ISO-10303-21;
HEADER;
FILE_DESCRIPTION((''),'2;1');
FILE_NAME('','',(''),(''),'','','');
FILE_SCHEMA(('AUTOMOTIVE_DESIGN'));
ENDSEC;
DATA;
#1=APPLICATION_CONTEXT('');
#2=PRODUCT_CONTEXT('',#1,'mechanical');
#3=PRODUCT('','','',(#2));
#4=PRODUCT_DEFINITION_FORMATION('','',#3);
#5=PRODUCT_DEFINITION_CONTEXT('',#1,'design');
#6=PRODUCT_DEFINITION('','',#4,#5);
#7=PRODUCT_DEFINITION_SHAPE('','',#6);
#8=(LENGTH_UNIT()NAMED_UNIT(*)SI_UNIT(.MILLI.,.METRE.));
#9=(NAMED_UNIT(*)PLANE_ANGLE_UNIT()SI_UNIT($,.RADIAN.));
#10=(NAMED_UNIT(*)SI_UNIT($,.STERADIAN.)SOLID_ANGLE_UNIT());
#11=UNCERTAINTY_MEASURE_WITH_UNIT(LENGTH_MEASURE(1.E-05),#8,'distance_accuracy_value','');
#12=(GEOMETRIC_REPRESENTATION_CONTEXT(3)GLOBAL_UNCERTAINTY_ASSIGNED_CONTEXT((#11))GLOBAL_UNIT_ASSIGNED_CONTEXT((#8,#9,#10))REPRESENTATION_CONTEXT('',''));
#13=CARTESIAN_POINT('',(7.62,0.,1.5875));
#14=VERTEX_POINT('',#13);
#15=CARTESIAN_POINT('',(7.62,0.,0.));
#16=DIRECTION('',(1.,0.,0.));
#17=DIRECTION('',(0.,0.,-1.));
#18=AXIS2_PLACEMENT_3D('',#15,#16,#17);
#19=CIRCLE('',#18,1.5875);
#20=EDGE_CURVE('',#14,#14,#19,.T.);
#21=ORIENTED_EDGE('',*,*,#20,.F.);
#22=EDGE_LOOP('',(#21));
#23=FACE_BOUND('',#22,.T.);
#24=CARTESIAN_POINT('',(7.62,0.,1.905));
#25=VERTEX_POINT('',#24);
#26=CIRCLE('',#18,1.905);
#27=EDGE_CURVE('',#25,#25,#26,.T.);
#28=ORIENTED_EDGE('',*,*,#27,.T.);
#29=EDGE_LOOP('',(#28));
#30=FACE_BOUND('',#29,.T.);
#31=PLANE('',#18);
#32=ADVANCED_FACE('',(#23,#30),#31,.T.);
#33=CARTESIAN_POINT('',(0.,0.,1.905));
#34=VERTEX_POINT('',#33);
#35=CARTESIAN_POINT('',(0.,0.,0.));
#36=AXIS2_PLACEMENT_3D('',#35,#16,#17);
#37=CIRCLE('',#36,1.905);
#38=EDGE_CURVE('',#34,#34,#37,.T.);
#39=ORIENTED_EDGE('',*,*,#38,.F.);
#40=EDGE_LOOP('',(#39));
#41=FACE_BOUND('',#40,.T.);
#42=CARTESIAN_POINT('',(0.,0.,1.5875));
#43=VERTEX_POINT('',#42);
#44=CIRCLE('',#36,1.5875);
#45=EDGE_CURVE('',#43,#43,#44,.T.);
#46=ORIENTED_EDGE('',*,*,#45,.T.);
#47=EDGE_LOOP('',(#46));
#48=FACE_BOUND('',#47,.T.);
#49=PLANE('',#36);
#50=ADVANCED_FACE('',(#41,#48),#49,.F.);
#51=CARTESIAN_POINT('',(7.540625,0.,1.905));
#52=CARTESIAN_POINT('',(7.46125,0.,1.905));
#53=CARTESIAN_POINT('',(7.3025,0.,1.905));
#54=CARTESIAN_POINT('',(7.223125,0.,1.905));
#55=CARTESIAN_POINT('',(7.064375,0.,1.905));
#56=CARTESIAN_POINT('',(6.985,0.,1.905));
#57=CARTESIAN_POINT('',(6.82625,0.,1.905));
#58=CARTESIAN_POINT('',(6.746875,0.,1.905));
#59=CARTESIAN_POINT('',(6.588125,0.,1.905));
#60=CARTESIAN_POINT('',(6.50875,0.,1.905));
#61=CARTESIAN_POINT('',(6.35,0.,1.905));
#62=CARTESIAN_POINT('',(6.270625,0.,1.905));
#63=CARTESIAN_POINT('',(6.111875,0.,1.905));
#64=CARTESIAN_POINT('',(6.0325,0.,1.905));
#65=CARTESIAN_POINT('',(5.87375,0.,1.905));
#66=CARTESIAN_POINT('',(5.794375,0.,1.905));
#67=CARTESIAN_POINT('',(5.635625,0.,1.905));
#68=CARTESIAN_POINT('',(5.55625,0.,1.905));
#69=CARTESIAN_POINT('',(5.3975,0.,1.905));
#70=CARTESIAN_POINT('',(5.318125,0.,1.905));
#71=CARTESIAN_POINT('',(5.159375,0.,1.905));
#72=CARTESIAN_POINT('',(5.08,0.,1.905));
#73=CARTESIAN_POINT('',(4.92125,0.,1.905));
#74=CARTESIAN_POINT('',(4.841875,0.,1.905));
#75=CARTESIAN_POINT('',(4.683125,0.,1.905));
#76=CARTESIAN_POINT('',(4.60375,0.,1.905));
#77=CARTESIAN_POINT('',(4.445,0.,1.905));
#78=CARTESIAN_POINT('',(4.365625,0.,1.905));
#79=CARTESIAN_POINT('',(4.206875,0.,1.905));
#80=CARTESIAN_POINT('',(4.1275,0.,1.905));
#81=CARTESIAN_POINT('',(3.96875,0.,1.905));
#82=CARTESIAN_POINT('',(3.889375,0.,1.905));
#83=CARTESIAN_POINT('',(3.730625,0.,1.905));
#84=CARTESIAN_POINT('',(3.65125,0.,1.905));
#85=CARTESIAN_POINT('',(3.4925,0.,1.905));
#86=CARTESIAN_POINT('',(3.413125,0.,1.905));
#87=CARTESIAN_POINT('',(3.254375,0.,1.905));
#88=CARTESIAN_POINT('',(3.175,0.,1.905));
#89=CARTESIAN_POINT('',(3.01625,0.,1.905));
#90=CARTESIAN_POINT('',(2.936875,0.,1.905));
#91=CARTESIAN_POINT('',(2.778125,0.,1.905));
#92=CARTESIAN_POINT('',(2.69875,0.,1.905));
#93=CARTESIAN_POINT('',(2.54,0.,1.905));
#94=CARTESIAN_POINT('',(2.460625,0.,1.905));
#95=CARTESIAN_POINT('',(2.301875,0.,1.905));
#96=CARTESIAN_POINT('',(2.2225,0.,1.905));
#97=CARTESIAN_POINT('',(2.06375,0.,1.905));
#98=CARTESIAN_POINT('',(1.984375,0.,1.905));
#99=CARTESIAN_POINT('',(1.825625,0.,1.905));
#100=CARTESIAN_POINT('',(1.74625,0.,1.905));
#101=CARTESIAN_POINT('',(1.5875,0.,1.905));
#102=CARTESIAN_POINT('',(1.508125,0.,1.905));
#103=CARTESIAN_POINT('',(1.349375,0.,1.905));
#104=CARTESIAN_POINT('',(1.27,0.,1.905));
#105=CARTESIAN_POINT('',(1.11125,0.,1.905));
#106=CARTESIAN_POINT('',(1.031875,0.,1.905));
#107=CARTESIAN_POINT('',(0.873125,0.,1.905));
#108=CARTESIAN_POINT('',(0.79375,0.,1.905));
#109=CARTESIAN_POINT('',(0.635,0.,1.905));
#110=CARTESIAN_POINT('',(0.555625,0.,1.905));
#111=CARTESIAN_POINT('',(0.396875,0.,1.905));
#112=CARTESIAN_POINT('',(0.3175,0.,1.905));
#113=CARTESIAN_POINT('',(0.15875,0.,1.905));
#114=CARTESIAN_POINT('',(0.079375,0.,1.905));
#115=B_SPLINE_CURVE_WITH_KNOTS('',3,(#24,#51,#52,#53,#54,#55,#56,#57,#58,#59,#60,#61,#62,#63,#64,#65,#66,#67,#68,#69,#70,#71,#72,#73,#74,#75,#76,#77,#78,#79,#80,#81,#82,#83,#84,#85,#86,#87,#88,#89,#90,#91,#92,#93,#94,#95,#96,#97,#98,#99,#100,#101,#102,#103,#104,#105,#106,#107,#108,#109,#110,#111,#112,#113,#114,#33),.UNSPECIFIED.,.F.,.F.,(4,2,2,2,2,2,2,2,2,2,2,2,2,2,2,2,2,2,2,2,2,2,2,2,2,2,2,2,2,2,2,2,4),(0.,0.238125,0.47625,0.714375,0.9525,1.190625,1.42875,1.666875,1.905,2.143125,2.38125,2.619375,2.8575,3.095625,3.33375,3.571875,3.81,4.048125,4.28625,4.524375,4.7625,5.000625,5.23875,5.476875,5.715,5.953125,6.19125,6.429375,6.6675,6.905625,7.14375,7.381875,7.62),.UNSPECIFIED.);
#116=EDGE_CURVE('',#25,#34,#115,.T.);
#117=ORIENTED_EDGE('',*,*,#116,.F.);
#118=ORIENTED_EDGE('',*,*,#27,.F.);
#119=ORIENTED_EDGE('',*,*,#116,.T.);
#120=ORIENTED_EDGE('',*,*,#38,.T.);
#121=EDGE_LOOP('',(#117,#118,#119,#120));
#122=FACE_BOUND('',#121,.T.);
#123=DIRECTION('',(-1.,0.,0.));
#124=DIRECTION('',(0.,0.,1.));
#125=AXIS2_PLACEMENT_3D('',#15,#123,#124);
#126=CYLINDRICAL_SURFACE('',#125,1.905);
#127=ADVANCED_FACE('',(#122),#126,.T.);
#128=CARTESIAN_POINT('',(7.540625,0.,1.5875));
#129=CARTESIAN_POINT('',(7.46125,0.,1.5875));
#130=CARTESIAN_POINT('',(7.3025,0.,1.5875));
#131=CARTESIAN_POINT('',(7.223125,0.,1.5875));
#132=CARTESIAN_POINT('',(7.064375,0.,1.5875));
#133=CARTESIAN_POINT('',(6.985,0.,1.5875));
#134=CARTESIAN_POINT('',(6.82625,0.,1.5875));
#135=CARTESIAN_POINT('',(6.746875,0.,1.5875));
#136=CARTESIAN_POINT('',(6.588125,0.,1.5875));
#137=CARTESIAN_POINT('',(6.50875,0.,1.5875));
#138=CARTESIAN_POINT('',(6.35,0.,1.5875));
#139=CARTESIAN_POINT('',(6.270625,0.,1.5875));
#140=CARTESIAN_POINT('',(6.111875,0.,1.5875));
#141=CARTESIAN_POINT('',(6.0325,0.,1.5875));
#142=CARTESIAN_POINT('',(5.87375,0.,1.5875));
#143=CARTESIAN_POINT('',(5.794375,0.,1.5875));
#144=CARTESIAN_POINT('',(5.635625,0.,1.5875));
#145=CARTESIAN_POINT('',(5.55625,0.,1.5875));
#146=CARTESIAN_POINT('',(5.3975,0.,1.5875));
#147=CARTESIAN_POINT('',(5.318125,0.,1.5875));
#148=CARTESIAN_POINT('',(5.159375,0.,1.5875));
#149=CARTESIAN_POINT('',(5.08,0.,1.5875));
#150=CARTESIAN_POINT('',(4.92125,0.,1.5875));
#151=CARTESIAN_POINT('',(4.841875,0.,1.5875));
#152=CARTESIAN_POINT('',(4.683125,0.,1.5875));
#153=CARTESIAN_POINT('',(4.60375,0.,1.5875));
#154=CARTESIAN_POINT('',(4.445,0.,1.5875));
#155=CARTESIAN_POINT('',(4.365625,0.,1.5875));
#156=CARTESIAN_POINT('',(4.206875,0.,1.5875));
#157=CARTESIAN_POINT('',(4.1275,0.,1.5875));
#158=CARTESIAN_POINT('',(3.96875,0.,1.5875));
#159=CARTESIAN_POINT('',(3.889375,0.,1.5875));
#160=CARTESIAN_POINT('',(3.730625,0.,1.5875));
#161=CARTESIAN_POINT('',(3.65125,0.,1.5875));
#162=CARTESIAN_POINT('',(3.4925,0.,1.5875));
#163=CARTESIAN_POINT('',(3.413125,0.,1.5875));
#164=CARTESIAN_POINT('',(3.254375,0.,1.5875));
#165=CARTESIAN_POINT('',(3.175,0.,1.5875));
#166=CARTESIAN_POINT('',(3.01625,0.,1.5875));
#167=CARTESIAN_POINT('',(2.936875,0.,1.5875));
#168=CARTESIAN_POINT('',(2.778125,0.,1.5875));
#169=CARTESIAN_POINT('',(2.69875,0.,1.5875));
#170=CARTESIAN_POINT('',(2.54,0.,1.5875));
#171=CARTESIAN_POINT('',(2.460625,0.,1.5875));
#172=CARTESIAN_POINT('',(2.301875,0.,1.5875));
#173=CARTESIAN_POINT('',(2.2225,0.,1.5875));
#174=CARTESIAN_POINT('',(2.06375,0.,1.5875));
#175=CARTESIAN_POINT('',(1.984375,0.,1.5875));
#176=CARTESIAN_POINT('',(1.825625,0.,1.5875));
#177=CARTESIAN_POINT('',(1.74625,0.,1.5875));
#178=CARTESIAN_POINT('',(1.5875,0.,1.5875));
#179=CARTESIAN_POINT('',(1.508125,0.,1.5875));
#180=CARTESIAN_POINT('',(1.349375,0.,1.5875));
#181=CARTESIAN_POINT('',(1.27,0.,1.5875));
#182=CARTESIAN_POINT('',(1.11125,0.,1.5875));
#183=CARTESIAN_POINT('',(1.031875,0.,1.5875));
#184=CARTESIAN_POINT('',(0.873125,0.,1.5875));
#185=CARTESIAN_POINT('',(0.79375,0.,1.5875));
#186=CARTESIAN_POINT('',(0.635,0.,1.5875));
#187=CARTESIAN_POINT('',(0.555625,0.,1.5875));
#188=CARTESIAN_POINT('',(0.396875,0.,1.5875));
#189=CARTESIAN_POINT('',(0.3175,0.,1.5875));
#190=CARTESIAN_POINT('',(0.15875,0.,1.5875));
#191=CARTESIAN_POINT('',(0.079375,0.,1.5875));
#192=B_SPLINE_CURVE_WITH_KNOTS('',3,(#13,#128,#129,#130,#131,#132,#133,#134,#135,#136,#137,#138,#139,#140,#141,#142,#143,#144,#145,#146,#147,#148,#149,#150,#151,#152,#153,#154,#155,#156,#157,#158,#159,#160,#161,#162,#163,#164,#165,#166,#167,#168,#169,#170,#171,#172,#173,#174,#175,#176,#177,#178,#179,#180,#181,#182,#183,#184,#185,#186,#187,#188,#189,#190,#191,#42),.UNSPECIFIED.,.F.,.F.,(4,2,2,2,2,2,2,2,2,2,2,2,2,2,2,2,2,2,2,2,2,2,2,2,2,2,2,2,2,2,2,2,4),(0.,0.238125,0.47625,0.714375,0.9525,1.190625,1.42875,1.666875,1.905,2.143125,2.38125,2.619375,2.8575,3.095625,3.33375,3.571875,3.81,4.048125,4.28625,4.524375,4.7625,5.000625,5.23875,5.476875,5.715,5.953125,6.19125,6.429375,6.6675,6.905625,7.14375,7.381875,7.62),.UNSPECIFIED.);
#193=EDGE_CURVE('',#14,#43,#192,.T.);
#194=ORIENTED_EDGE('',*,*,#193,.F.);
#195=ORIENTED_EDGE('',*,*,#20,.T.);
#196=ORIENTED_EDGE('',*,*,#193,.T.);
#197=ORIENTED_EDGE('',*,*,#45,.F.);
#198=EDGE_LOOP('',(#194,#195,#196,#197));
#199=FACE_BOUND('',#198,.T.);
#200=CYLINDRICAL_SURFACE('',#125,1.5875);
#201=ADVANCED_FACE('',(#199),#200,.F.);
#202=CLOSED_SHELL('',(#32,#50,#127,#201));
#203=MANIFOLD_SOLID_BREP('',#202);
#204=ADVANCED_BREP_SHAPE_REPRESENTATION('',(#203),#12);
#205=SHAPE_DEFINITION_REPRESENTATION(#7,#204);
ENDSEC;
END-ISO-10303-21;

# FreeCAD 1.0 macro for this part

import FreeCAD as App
import Part
import Sketcher

V = App.Vector
Q = App.Units.Quantity

doc = App.newDocument("Part")
body = doc.addObject("PartDesign::Body", "Body")

sketch1 = body.newObject("Sketcher::SketchObject", "Sketch")
sketch1.AttachmentSupport = (doc.getObject("YZ_Plane"), [""])
sketch1.MapMode = "FlatFace"
sketch1.addGeometry([
    Part.Circle(V(0, 0, 0), V(0, 0, 1), 1.9),
    Part.Circle(V(0, 0, 0), V(0, 0, 1), 1.6),
], False)
sketch1.addConstraint([
    Sketcher.Constraint("Coincident", 0, 3, -1, 1),
    Sketcher.Constraint("Coincident", 1, 3, -1, 1),
    Sketcher.Constraint("Diameter", 0, Q("0.15 in")),
    Sketcher.Constraint("Diameter", 1, Q("0.125 in")),
])
pad1 = body.newObject("PartDesign::Pad", "Pad")
pad1.Profile = sketch1
pad1.Length = Q("0.3 in")

doc.recompute()
